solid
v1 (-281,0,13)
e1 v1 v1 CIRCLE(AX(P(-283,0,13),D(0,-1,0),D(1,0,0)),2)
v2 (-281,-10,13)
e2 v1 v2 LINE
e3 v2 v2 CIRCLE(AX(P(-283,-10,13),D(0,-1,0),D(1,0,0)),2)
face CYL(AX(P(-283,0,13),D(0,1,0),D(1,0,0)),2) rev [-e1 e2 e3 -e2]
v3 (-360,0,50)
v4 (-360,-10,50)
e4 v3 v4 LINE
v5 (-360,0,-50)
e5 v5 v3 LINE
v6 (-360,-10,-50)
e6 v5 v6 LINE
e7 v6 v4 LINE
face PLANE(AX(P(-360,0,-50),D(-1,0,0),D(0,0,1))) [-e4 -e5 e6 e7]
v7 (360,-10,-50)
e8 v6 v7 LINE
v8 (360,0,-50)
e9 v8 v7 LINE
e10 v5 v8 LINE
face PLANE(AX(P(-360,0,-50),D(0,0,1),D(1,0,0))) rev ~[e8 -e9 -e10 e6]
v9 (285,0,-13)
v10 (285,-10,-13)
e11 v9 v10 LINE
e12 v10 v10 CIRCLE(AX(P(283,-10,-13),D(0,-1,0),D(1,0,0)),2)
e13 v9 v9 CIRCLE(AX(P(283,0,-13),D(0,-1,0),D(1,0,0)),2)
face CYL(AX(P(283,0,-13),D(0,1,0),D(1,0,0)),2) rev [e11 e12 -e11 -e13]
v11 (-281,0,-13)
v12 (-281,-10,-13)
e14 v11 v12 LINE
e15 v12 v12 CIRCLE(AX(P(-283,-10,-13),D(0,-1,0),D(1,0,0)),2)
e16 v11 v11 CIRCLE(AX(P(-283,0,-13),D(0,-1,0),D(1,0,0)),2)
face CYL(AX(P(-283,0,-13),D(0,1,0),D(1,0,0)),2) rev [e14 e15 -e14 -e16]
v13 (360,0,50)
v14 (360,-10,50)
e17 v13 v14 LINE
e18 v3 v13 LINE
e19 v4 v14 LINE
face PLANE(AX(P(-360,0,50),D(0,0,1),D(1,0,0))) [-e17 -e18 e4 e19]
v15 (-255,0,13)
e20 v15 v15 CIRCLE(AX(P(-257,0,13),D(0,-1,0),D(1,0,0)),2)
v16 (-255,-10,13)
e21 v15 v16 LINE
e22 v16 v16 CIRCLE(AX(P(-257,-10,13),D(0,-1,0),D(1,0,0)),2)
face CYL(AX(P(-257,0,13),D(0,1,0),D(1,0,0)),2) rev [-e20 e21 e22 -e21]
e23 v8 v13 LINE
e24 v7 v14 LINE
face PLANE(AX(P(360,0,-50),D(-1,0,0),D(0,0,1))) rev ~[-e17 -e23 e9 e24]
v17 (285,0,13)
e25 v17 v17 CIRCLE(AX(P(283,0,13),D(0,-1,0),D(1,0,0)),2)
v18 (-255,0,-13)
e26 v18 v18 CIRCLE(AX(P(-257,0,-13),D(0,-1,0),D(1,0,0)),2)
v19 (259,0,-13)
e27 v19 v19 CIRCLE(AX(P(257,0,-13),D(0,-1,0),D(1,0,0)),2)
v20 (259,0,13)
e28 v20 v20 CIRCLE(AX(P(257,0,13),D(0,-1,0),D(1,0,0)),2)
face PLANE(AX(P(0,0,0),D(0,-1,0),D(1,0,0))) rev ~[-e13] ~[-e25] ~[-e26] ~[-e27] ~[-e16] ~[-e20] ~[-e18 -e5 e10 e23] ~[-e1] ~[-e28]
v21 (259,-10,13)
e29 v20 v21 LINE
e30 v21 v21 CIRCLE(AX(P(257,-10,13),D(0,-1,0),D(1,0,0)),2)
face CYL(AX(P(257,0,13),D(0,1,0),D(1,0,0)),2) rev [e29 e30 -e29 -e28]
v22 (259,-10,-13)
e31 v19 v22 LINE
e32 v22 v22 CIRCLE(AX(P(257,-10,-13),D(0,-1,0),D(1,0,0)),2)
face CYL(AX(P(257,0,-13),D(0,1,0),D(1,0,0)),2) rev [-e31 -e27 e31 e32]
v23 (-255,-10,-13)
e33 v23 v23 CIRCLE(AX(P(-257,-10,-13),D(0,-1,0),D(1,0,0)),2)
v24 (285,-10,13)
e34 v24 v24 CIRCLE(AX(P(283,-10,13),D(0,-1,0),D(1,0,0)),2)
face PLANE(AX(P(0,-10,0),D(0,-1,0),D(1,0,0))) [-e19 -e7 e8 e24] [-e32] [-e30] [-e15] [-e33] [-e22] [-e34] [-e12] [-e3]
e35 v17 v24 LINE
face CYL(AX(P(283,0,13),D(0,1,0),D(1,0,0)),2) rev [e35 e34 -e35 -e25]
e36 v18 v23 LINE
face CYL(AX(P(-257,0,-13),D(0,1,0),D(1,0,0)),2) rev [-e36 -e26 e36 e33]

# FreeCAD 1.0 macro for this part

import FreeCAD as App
import Part
import Sketcher

V = App.Vector


def add_polygon(sketch, points):
    """Adds a closed chain of lines whose ends are joined by coincident constraints."""
    first, n = sketch.GeometryCount, len(points)
    for a, b in zip(points, points[1:] + points[:1]):
        sketch.addGeometry(Part.LineSegment(App.Vector(*a, 0), App.Vector(*b, 0)), False)
    for i in range(n):
        sketch.addConstraint(Sketcher.Constraint("Coincident", first + i, 2, first + (i + 1) % n, 1))

doc = App.newDocument("Part")
body = doc.addObject("PartDesign::Body", "Body")

# Sketch on XZ plane
sketch1 = body.newObject("Sketcher::SketchObject", "Sketch")
sketch1.AttachmentSupport = (doc.getObject("XZ_Plane"), [""])
sketch1.MapMode = "FlatFace"
add_polygon(sketch1, [(-360, 50), (-360, -50), (360, -50), (360, 50)])  # lines 0-3
sketch1.addGeometry(Part.Circle(V(-283, -13, 0), V(0, 0, 1), 2), False)  # 4
sketch1.addGeometry(Part.Circle(V(-257, -13, 0), V(0, 0, 1), 2), False)  # 5
sketch1.addGeometry(Part.Circle(V(257, -13, 0), V(0, 0, 1), 2), False)  # 6
sketch1.addGeometry(Part.Circle(V(283, -13, 0), V(0, 0, 1), 2), False)  # 7
sketch1.addGeometry(Part.Circle(V(-283, 13, 0), V(0, 0, 1), 2), False)  # 8
sketch1.addGeometry(Part.Circle(V(-257, 13, 0), V(0, 0, 1), 2), False)  # 9
sketch1.addGeometry(Part.Circle(V(257, 13, 0), V(0, 0, 1), 2), False)  # 10
sketch1.addGeometry(Part.Circle(V(283, 13, 0), V(0, 0, 1), 2), False)  # 11
sketch1.addConstraint(Sketcher.Constraint("Vertical", 0))
sketch1.addConstraint(Sketcher.Constraint("Horizontal", 1))
sketch1.addConstraint(Sketcher.Constraint("Vertical", 2))
sketch1.addConstraint(Sketcher.Constraint("Horizontal", 3))
sketch1.addConstraint(Sketcher.Constraint("Equal", 4, 5))
sketch1.addConstraint(Sketcher.Constraint("Equal", 5, 6))
sketch1.addConstraint(Sketcher.Constraint("Equal", 6, 7))
sketch1.addConstraint(Sketcher.Constraint("Equal", 7, 8))
sketch1.addConstraint(Sketcher.Constraint("Equal", 8, 9))
sketch1.addConstraint(Sketcher.Constraint("Equal", 9, 10))
sketch1.addConstraint(Sketcher.Constraint("Equal", 10, 11))
sketch1.addConstraint(Sketcher.Constraint("Symmetric", 7, 3, 8, 3, -1, 1))
sketch1.addConstraint(Sketcher.Constraint("Symmetric", 6, 3, 9, 3, -1, 1))
sketch1.addConstraint(Sketcher.Constraint("Symmetric", 5, 3, 10, 3, -1, 1))
sketch1.addConstraint(Sketcher.Constraint("Symmetric", 4, 3, 11, 3, -1, 1))
sketch1.addConstraint(Sketcher.Constraint("Symmetric", 0, 2, 2, 2, -1, 1))
sketch1.addConstraint(Sketcher.Constraint("Symmetric", 5, 3, 6, 3, -2))
sketch1.addConstraint(Sketcher.Constraint("Symmetric", 4, 3, 7, 3, -2))
sketch1.addConstraint(Sketcher.Constraint("Horizontal", 4, 3, 5, 3))
sketch1.addConstraint(Sketcher.Constraint("Diameter", 4, 4.0))
sketch1.addConstraint(Sketcher.Constraint("DistanceX", 1, 1, 1, 2, 720.0))
sketch1.addConstraint(Sketcher.Constraint("DistanceY", 0, 2, 0, 1, 100.0))
sketch1.addConstraint(Sketcher.Constraint("DistanceX", 4, 3, -1, 1, 283.0))
sketch1.addConstraint(Sketcher.Constraint("DistanceY", 4, 3, -1, 1, 13.0))
sketch1.addConstraint(Sketcher.Constraint("DistanceX", 5, 3, -1, 1, 257.0))
pad1 = body.newObject("PartDesign::Pad", "Pad")
pad1.Profile = sketch1
pad1.Length = 10

doc.recompute()
